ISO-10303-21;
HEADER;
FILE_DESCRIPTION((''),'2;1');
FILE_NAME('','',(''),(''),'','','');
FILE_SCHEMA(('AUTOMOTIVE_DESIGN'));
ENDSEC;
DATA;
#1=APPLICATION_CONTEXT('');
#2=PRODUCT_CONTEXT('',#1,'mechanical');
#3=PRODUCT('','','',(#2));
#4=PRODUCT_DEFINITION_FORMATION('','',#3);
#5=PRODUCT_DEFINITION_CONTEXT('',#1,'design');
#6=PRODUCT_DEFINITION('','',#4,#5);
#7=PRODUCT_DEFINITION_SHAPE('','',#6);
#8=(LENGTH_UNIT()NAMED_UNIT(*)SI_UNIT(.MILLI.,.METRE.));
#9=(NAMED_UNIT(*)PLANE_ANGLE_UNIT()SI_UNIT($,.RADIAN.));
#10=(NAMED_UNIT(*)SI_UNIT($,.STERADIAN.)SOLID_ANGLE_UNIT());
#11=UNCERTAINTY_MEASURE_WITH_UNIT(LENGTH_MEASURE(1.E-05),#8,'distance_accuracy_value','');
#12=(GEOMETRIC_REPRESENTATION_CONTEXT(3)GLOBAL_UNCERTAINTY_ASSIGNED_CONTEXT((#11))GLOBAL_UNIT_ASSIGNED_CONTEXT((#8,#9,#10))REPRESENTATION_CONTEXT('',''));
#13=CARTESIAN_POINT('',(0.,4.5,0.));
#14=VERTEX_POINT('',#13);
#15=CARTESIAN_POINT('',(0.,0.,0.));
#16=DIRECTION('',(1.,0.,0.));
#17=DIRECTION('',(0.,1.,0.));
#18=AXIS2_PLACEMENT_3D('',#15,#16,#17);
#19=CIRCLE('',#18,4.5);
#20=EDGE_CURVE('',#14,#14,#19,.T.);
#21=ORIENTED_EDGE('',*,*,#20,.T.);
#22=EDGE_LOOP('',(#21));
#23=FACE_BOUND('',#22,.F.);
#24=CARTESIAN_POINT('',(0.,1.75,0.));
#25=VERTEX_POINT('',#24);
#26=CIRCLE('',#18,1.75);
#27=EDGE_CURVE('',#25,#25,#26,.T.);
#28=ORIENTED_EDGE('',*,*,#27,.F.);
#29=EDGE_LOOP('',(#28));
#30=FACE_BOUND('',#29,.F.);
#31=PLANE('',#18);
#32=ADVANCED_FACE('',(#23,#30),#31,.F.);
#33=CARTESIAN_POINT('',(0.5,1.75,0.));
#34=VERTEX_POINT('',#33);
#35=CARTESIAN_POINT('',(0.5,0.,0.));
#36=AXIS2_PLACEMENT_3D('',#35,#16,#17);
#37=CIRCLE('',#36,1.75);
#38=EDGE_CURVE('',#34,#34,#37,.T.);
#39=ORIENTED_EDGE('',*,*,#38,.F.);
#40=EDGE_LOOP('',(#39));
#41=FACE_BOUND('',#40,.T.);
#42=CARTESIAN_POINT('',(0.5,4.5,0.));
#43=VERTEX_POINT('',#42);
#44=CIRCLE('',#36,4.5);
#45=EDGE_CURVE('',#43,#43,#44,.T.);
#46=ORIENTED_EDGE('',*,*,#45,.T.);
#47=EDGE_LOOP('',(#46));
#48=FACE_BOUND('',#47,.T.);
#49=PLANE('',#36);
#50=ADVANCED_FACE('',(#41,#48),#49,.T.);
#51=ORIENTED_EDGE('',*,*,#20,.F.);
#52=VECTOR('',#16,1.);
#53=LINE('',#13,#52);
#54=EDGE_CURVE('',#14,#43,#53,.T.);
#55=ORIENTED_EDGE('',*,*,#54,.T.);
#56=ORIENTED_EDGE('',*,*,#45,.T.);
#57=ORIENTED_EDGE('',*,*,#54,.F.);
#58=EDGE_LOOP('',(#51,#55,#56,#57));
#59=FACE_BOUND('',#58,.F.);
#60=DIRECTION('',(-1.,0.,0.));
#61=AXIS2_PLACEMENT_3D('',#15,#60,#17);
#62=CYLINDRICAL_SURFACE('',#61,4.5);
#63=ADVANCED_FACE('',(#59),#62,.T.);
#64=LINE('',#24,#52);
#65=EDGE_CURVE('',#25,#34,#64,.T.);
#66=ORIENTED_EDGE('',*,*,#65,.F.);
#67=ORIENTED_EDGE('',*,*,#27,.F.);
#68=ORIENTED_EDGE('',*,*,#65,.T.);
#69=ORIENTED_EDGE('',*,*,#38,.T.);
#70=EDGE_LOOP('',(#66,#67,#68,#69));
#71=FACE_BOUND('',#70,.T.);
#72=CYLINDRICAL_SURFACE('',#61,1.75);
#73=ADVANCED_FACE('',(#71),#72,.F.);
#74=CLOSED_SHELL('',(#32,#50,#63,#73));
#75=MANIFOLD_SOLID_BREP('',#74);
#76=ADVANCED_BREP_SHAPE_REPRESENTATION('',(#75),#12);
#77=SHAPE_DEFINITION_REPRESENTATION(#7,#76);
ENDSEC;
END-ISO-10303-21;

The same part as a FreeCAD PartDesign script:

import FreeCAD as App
import Part
import Sketcher
from FreeCAD import Vector

doc = App.newDocument("Part")
body = doc.addObject("PartDesign::Body", "Body")

# Sketch on YZ plane
sketch1 = body.newObject("Sketcher::SketchObject", "Sketch")
sketch1.AttachmentSupport = (doc.getObject("YZ_Plane"), [""])
sketch1.MapMode = "FlatFace"
sketch1.addGeometry(Part.Circle(Vector(0, 0, 0), Vector(0, 0, 1), 4.5), False)
sketch1.addGeometry(Part.Circle(Vector(0, 0, 0), Vector(0, 0, 1), 1.75), False)
sketch1.addConstraint(Sketcher.Constraint("Coincident", 0, 3, -1, 1))
sketch1.addConstraint(Sketcher.Constraint("Coincident", 1, 3, -1, 1))
sketch1.addConstraint(Sketcher.Constraint("Diameter", 0, 9.0))
sketch1.addConstraint(Sketcher.Constraint("Diameter", 1, 3.5))
pad1 = body.newObject("PartDesign::Pad", "Pad")
pad1.Profile = sketch1
pad1.Length = 0.5

doc.recompute()
